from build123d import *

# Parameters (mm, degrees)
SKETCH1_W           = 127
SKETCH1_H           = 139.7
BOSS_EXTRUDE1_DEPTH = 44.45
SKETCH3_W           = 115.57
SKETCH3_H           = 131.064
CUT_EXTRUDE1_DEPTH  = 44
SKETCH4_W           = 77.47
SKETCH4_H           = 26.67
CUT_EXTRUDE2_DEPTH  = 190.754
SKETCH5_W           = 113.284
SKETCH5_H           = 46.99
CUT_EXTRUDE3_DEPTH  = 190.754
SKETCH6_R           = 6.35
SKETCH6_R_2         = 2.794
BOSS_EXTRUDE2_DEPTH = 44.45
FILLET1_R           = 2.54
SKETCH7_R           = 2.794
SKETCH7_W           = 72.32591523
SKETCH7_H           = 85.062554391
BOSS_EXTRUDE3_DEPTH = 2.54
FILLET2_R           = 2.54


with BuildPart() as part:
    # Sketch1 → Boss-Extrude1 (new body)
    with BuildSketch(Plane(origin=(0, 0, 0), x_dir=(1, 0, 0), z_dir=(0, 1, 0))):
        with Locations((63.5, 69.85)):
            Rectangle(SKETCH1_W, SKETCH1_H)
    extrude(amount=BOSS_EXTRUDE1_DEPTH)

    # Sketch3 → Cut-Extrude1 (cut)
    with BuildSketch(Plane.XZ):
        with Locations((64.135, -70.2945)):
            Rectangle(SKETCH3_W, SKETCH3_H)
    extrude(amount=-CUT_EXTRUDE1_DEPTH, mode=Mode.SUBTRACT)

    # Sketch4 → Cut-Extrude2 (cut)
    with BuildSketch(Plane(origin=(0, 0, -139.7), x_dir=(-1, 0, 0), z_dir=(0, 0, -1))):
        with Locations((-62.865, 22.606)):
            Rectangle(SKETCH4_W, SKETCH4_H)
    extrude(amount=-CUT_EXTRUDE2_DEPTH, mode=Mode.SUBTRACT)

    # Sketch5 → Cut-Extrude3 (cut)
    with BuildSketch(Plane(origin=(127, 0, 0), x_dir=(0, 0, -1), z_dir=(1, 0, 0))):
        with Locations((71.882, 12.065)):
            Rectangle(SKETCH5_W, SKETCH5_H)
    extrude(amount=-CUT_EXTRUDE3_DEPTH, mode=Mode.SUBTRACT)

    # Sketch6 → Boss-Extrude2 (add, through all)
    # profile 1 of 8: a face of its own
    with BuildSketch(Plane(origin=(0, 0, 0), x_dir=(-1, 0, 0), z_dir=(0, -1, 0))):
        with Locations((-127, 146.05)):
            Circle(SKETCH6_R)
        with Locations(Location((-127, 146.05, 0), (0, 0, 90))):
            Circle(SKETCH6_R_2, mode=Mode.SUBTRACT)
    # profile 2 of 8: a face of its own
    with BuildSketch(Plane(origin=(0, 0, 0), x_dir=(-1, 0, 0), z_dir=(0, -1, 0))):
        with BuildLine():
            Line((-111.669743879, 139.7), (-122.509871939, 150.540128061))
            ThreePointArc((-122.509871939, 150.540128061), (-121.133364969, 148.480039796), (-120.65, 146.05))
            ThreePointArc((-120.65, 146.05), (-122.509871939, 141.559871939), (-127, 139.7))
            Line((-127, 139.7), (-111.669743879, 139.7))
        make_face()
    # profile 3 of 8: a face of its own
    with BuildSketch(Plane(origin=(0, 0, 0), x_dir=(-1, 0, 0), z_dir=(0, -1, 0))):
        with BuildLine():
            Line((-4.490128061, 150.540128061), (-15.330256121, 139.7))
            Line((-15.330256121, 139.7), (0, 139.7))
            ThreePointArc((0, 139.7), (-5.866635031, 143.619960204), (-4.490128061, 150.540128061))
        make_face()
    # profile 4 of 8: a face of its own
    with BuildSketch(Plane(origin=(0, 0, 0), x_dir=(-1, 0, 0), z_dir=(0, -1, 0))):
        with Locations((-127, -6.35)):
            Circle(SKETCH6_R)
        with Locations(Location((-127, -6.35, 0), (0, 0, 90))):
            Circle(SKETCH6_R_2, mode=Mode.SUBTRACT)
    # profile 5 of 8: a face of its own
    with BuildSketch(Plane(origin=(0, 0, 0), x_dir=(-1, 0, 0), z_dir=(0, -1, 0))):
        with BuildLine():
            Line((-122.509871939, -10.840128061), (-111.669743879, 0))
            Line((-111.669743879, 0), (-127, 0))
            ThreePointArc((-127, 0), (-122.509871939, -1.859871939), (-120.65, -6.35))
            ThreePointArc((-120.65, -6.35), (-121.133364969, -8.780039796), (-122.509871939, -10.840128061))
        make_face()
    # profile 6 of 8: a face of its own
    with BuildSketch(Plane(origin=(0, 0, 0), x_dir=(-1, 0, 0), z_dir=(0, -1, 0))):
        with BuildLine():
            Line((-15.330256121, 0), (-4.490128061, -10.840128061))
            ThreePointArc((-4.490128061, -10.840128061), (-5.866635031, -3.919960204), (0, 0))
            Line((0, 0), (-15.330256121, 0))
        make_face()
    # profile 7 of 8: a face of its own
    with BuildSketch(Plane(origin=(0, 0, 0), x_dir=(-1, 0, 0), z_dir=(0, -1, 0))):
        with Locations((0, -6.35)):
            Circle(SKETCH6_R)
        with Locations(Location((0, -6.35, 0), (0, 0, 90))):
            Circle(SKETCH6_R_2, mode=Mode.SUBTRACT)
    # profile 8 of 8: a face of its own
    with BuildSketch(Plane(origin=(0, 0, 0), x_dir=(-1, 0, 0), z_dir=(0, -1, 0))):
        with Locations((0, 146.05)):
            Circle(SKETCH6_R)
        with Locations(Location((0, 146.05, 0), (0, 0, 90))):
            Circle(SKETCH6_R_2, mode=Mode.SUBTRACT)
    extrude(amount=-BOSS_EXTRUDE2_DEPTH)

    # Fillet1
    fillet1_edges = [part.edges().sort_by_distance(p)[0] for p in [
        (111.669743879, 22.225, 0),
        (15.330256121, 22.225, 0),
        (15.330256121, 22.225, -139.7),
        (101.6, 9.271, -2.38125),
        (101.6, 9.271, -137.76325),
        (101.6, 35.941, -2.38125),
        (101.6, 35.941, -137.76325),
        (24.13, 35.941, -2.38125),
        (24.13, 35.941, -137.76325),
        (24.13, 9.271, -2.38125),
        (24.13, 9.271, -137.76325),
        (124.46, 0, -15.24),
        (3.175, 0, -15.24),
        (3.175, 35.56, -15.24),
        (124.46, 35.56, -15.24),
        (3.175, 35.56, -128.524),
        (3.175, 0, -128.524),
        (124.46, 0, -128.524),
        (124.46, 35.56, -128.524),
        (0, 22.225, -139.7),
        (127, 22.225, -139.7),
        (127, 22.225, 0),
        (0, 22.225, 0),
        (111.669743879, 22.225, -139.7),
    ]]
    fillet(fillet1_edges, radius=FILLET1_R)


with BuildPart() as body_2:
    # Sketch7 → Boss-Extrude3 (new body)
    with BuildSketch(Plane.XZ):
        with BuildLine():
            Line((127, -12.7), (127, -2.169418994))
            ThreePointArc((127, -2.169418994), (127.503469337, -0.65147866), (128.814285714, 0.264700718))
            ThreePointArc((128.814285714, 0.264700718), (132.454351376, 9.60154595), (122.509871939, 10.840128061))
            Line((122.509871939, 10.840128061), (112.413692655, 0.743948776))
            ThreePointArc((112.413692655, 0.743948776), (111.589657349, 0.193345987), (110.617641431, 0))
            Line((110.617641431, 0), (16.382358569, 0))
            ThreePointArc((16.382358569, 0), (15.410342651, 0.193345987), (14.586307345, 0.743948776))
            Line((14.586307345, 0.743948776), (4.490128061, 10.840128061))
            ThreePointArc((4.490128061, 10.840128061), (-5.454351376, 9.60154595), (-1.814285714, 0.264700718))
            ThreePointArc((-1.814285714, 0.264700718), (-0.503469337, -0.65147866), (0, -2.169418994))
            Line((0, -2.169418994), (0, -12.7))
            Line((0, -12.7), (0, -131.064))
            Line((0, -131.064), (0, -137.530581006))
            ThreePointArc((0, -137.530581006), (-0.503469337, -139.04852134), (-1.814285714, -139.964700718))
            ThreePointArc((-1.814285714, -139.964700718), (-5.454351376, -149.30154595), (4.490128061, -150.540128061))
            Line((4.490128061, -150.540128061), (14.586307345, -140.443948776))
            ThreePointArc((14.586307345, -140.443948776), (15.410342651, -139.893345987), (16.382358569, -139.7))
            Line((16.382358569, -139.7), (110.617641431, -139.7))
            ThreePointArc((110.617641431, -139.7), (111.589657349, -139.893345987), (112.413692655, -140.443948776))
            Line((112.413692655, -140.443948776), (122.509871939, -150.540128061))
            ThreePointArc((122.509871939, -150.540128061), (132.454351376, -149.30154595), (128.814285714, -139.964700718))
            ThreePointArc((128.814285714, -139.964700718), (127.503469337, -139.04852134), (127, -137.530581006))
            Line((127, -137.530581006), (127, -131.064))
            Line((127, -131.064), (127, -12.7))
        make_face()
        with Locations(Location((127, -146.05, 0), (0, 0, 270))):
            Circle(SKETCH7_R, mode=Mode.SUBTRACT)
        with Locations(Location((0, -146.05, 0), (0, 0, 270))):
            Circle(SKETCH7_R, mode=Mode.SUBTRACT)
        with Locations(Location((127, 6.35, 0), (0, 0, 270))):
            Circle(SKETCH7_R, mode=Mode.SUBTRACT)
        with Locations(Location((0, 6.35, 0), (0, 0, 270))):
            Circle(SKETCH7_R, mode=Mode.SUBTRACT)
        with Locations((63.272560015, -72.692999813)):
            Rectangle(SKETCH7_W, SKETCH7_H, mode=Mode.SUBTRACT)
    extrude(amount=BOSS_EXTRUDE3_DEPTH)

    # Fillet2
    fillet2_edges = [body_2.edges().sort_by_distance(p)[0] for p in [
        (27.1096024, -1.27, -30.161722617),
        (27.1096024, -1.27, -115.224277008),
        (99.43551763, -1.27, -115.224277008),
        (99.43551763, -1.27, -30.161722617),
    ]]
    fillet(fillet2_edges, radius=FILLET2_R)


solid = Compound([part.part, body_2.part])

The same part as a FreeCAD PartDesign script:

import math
import FreeCAD as App
import Part
import Sketcher
Q = App.Units.Quantity


def edges_at(feature, points):
    """Names of the edges that pass closest to the given points."""
    edges = feature.Shape.Edges
    near = lambda p: min(range(len(edges)), key=lambda i: edges[i].distToShape(Part.Vertex(*p))[0])
    return sorted({f"Edge{near(p) + 1}" for p in points})


def add_polygon(sketch, points):
    """Adds a closed chain of lines whose ends are joined by coincident constraints."""
    first, n = sketch.GeometryCount, len(points)
    for a, b in zip(points, points[1:] + points[:1]):
        sketch.addGeometry(Part.LineSegment(App.Vector(*a, 0), App.Vector(*b, 0)), False)
    for i in range(n):
        sketch.addConstraint(Sketcher.Constraint("Coincident", first + i, 2, first + (i + 1) % n, 1))

doc = App.newDocument("Part")
body = doc.addObject("PartDesign::Body", "Body")

sketch1 = body.newObject("Sketcher::SketchObject", "Sketch")
sketch1.AttachmentSupport = (doc.getObject("XZ_Plane"), [""])
sketch1.MapMode = "FlatFace"
add_polygon(sketch1, [(0, -139.7), (0, 0), (127, 0), (127, -139.7)])
sketch1.addConstraint([
    Sketcher.Constraint("Vertical", 0),
    Sketcher.Constraint("Horizontal", 1),
    Sketcher.Constraint("Vertical", 2),
    Sketcher.Constraint("Horizontal", 3),
    Sketcher.Constraint("Coincident", 0, 2, -1, 1),
    Sketcher.Constraint("DistanceX", 1, 1, 1, 2, Q("5 in")),
    Sketcher.Constraint("DistanceY", 0, 1, 0, 2, Q("5.5 in")),
])
pad1 = body.newObject("PartDesign::Pad", "Pad")
pad1.Profile = sketch1
pad1.Length = Q("1.75 in")
pad1.Reversed = True

sketch2 = body.newObject("Sketcher::SketchObject", "Sketch001")
sketch2.AttachmentSupport = (doc.getObject("XZ_Plane"), [""])
sketch2.MapMode = "FlatFace"
add_polygon(sketch2, [(6.35, -4.7625), (6.35, -135.8265), (121.92, -135.8265), (121.92, -4.7625)])
sketch2.addConstraint([
    Sketcher.Constraint("Vertical", 0),
    Sketcher.Constraint("Horizontal", 1),
    Sketcher.Constraint("Vertical", 2),
    Sketcher.Constraint("Horizontal", 3),
    Sketcher.Constraint("DistanceX", 1, 1, 1, 2, Q("4.55 in")),
    Sketcher.Constraint("DistanceY", 0, 2, 0, 1, Q("5.16 in")),
    Sketcher.Constraint("DistanceX", -1, 1, 1, 2, Q("4.8 in")),
    Sketcher.Constraint("DistanceY", 2, 2, -1, 1, Q("0.1875 in")),
])
pocket1 = body.newObject("PartDesign::Pocket", "Pocket")
pocket1.Profile = sketch2
pocket1.Length = 44

sketch3 = body.newObject("Sketcher::SketchObject", "Sketch002")
sketch3.AttachmentSupport = (doc.getObject("XY_Plane"), [""])
sketch3.MapMode = "FlatFace"
sketch3.AttachmentOffset = App.Placement(App.Vector(0, 0, -5.5 * 25.4), App.Rotation())
add_polygon(sketch3, [(101.6, 35.941), (101.6, 9.271), (24.13, 9.271), (24.13, 35.941)])
sketch3.addConstraint([
    Sketcher.Constraint("Vertical", 0),
    Sketcher.Constraint("Horizontal", 1),
    Sketcher.Constraint("Vertical", 2),
    Sketcher.Constraint("Horizontal", 3),
    Sketcher.Constraint("DistanceX", -1, 1, 0, 2, Q("4 in")),
    Sketcher.Constraint("DistanceX", 1, 2, 1, 1, Q("3.05 in")),
    Sketcher.Constraint("DistanceY", 0, 2, 0, 1, Q("1.05 in")),
    Sketcher.Constraint("DistanceY", -1, 1, 0, 2, Q("0.365 in")),
])
pocket2 = body.newObject("PartDesign::Pocket", "Pocket001")
pocket2.Profile = sketch3
pocket2.Length = Q("7.51 in")
pocket2.Reversed = True

sketch4 = body.newObject("Sketcher::SketchObject", "Sketch003")
sketch4.AttachmentSupport = (doc.getObject("YZ_Plane"), [""])
sketch4.MapMode = "FlatFace"
sketch4.AttachmentOffset = App.Placement(App.Vector(0, 0, 5 * 25.4), App.Rotation())
add_polygon(sketch4, [(35.56, -15.24), (-11.43, -15.24), (-11.43, -128.524), (35.56, -128.524)])
sketch4.addConstraint([
    Sketcher.Constraint("Horizontal", 0),
    Sketcher.Constraint("Vertical", 1),
    Sketcher.Constraint("Horizontal", 2),
    Sketcher.Constraint("Vertical", 3),
    Sketcher.Constraint("DistanceX", 0, 2, 0, 1, Q("1.85 in")),
    Sketcher.Constraint("DistanceY", 1, 2, 1, 1, Q("4.46 in")),
    Sketcher.Constraint("DistanceY", 0, 2, -1, 1, Q("0.6 in")),
    Sketcher.Constraint("DistanceX", -1, 1, 2, 2, Q("1.4 in")),
])
pocket3 = body.newObject("PartDesign::Pocket", "Pocket002")
pocket3.Profile = sketch4
pocket3.Length = Q("7.51 in")

sketch5 = body.newObject("Sketcher::SketchObject", "Sketch004")
sketch5.AttachmentSupport = (doc.getObject("XZ_Plane"), [""])
sketch5.MapMode = "FlatFace"
sketch5.addGeometry([
    Part.ArcOfCircle(Part.Circle(App.Vector(127, -146.05, 0), App.Vector(0, 0, 1), 6.35), math.radians(-135), math.radians(90)),
    Part.LineSegment(App.Vector(127, -139.7, 0), App.Vector(111.669744, -139.7, 0)),
    Part.LineSegment(App.Vector(111.669744, -139.7, 0), App.Vector(122.509872, -150.540128, 0)),
    Part.Circle(App.Vector(127, -146.05, 0), App.Vector(0, 0, 1), 2.794),
    Part.LineSegment(App.Vector(4.490128, -150.540128, 0), App.Vector(15.330256, -139.7, 0)),
    Part.LineSegment(App.Vector(15.330256, -139.7, 0), App.Vector(0, -139.7, 0)),
    Part.ArcOfCircle(Part.Circle(App.Vector(0, -146.05, 0), App.Vector(0, 0, 1), 6.35), math.radians(90), math.radians(315)),
    Part.Circle(App.Vector(0, -146.05, 0), App.Vector(0, 0, 1), 2.794),
    Part.ArcOfCircle(Part.Circle(App.Vector(127, 6.35, 0), App.Vector(0, 0, 1), 6.35), math.radians(-90), math.radians(135)),
    Part.LineSegment(App.Vector(122.509872, 10.840128, 0), App.Vector(111.669744, 0, 0)),
    Part.LineSegment(App.Vector(111.669744, 0, 0), App.Vector(127, 0, 0)),
    Part.Circle(App.Vector(127, 6.35, 0), App.Vector(0, 0, 1), 2.794),
    Part.LineSegment(App.Vector(15.330256, 0, 0), App.Vector(4.490128, 10.840128, 0)),
    Part.ArcOfCircle(Part.Circle(App.Vector(0, 6.35, 0), App.Vector(0, 0, 1), 6.35), math.radians(45), math.radians(270)),
    Part.LineSegment(App.Vector(0, 0, 0), App.Vector(15.330256, 0, 0)),
    Part.Circle(App.Vector(0, 6.35, 0), App.Vector(0, 0, 1), 2.794),
], False)
sketch5.addConstraint([
    Sketcher.Constraint("Tangent", 0, 2, 1, 1),
    Sketcher.Constraint("Coincident", 1, 2, 2, 1),
    Sketcher.Constraint("Tangent", 2, 2, 0, 1),
    Sketcher.Constraint("Coincident", 4, 2, 5, 1),
    Sketcher.Constraint("Tangent", 5, 2, 6, 1),
    Sketcher.Constraint("Tangent", 6, 2, 4, 1),
    Sketcher.Constraint("Tangent", 8, 2, 9, 1),
    Sketcher.Constraint("Coincident", 9, 2, 10, 1),
    Sketcher.Constraint("Tangent", 10, 2, 8, 1),
    Sketcher.Constraint("Tangent", 12, 2, 13, 1),
    Sketcher.Constraint("Tangent", 13, 2, 14, 1),
    Sketcher.Constraint("Coincident", 14, 2, 12, 1),
    Sketcher.Constraint("Horizontal", 1),
    Sketcher.Constraint("Horizontal", 5),
    Sketcher.Constraint("Horizontal", 10),
    Sketcher.Constraint("Horizontal", 14),
    Sketcher.Constraint("Coincident", 13, 2, -1, 1),
    Sketcher.Constraint("Coincident", 3, 3, 0, 3),
    Sketcher.Constraint("Coincident", 7, 3, 6, 3),
    Sketcher.Constraint("Coincident", 11, 3, 8, 3),
    Sketcher.Constraint("Coincident", 15, 3, 13, 3),
    Sketcher.Constraint("Equal", 0, 6),
    Sketcher.Constraint("Equal", 3, 7),
    Sketcher.Constraint("Equal", 6, 8),
    Sketcher.Constraint("Equal", 7, 11),
    Sketcher.Constraint("Equal", 8, 13),
    Sketcher.Constraint("Equal", 11, 15),
    Sketcher.Constraint("PointOnObject", 6, 3, -2),
    Sketcher.Constraint("PointOnObject", 9, 2, -1),
    Sketcher.Constraint("Perpendicular", 2, 4),
    Sketcher.Constraint("Parallel", 4, 9),
    Sketcher.Constraint("Perpendicular", 9, 12),
    Sketcher.Constraint("Horizontal", 3, 3, 6, 3),
    Sketcher.Constraint("Horizontal", 2, 2, 6, 2),
    Sketcher.Constraint("Vertical", 3, 3, 8, 3),
    Sketcher.Constraint("Diameter", 3, Q("0.22 in")),
    Sketcher.Constraint("Radius", 0, Q("0.25 in")),
    Sketcher.Constraint("DistanceX", -1, 1, 0, 3, Q("5 in")),
    Sketcher.Constraint("DistanceY", 0, 3, 8, 3, Q("6 in")),
])
pad2 = body.newObject("PartDesign::Pad", "Pad001")
pad2.Profile = sketch5
pad2.Length = Q("1.75 in")
pad2.Reversed = True
doc.recompute()

fillet = body.newObject("PartDesign::Fillet", "Fillet")
fillet.Base = (pad2, edges_at(pad2, [
    (111.67, 22.225, 0),
    (15.33, 22.225, 0),
    (15.33, 22.225, -139.7),
    (101.6, 9.271, -2.381),
    (101.6, 9.271, -137.763),
    (101.6, 35.941, -2.381),
    (101.6, 35.941, -137.763),
    (24.13, 35.941, -2.381),
    (24.13, 35.941, -137.763),
    (24.13, 9.271, -2.381),
    (24.13, 9.271, -137.763),
    (124.46, 0, -15.24),
    (3.175, 0, -15.24),
    (3.175, 35.56, -15.24),
    (124.46, 35.56, -15.24),
    (3.175, 35.56, -128.524),
    (3.175, 0, -128.524),
    (124.46, 0, -128.524),
    (124.46, 35.56, -128.524),
    (0, 22.225, -139.7),
    (127, 22.225, -139.7),
    (127, 22.225, 0),
    (0, 22.225, 0),
    (111.67, 22.225, -139.7),
]))
fillet.Radius = Q("0.1 in")
body2 = doc.addObject("PartDesign::Body", "Body001")

sketch6 = body2.newObject("Sketcher::SketchObject", "Sketch005")
sketch6.AttachmentSupport = (doc.getObject("XZ_Plane001"), [""])
sketch6.MapMode = "FlatFace"
sketch6.addGeometry(Part.ArcOfCircle(Part.Circle(App.Vector(129.54, -2.169419, 0), App.Vector(0, 0, 1), 2.54), math.radians(106.60155), math.radians(180)), False)
sketch6.addGeometry(Part.ArcOfCircle(Part.Circle(App.Vector(127, 6.35, 0), App.Vector(0, 0, 1), 6.35), math.radians(-73.39845), math.radians(135)), False)
sketch6.addGeometry(Part.LineSegment(App.Vector(122.509872, 10.840128, 0), App.Vector(112.413693, 0.743949, 0)), False)
sketch6.addGeometry(Part.ArcOfCircle(Part.Circle(App.Vector(110.617641, 2.54, 0), App.Vector(0, 0, 1), 2.54), math.radians(-90), math.radians(-45)), False)
sketch6.addGeometry(Part.LineSegment(App.Vector(110.617641, 0, 0), App.Vector(16.382359, 0, 0)), False)
sketch6.addGeometry(Part.ArcOfCircle(Part.Circle(App.Vector(16.382359, 2.54, 0), App.Vector(0, 0, 1), 2.54), math.radians(-135), math.radians(-90)), False)
sketch6.addGeometry(Part.LineSegment(App.Vector(14.586307, 0.743949, 0), App.Vector(4.490128, 10.840128, 0)), False)
sketch6.addGeometry(Part.ArcOfCircle(Part.Circle(App.Vector(0, 6.35, 0), App.Vector(0, 0, 1), 6.35), math.radians(45), math.radians(253.39845)), False)
sketch6.addGeometry(Part.ArcOfCircle(Part.Circle(App.Vector(-2.54, -2.169419, 0), App.Vector(0, 0, 1), 2.54), math.radians(0), math.radians(73.39845)), False)
sketch6.addGeometry(Part.LineSegment(App.Vector(0, -2.169419, 0), App.Vector(0, -137.530581, 0)), False)
sketch6.addGeometry(Part.ArcOfCircle(Part.Circle(App.Vector(-2.54, -137.530581, 0), App.Vector(0, 0, 1), 2.54), math.radians(-73.39845), math.radians(0)), False)
sketch6.addGeometry(Part.ArcOfCircle(Part.Circle(App.Vector(0, -146.05, 0), App.Vector(0, 0, 1), 6.35), math.radians(106.60155), math.radians(315)), False)
sketch6.addGeometry(Part.LineSegment(App.Vector(4.490128, -150.540128, 0), App.Vector(14.586307, -140.443949, 0)), False)
sketch6.addGeometry(Part.ArcOfCircle(Part.Circle(App.Vector(16.382359, -142.24, 0), App.Vector(0, 0, 1), 2.54), math.radians(90), math.radians(135)), False)
sketch6.addGeometry(Part.LineSegment(App.Vector(16.382359, -139.7, 0), App.Vector(110.617641, -139.7, 0)), False)
sketch6.addGeometry(Part.ArcOfCircle(Part.Circle(App.Vector(110.617641, -142.24, 0), App.Vector(0, 0, 1), 2.54), math.radians(45), math.radians(90)), False)
sketch6.addGeometry(Part.LineSegment(App.Vector(112.413693, -140.443949, 0), App.Vector(122.509872, -150.540128, 0)), False)
sketch6.addGeometry(Part.ArcOfCircle(Part.Circle(App.Vector(127, -146.05, 0), App.Vector(0, 0, 1), 6.35), math.radians(-135), math.radians(73.39845)), False)
sketch6.addGeometry(Part.ArcOfCircle(Part.Circle(App.Vector(129.54, -137.530581, 0), App.Vector(0, 0, 1), 2.54), math.radians(180), math.radians(253.39845)), False)
sketch6.addGeometry(Part.LineSegment(App.Vector(127, -137.530581, 0), App.Vector(127, -2.169419, 0)), False)
sketch6.addGeometry(Part.Circle(App.Vector(0, -146.05, 0), App.Vector(0, 0, 1), 2.794), False)
add_polygon(sketch6, [(99.435518, -115.224277), (27.109602, -115.224277), (27.109602, -30.161723), (99.435518, -30.161723)])
sketch6.addGeometry(Part.Circle(App.Vector(127, -146.05, 0), App.Vector(0, 0, 1), 2.794), False)
sketch6.addGeometry(Part.Circle(App.Vector(0, 6.35, 0), App.Vector(0, 0, 1), 2.794), False)
sketch6.addGeometry(Part.Circle(App.Vector(127, 6.35, 0), App.Vector(0, 0, 1), 2.794), False)
sketch6.addConstraint([
    Sketcher.Constraint("Tangent", 0, 1, 1, 1),
    Sketcher.Constraint("Tangent", 1, 2, 2, 1),
    Sketcher.Constraint("Tangent", 2, 2, 3, 2),
    Sketcher.Constraint("Tangent", 3, 1, 4, 1),
    Sketcher.Constraint("Tangent", 4, 2, 5, 2),
    Sketcher.Constraint("Tangent", 5, 1, 6, 1),
    Sketcher.Constraint("Tangent", 6, 2, 7, 1),
    Sketcher.Constraint("Tangent", 7, 2, 8, 2),
    Sketcher.Constraint("Tangent", 8, 1, 9, 1),
    Sketcher.Constraint("Tangent", 9, 2, 10, 2),
    Sketcher.Constraint("Tangent", 10, 1, 11, 1),
    Sketcher.Constraint("Tangent", 11, 2, 12, 1),
    Sketcher.Constraint("Tangent", 12, 2, 13, 2),
    Sketcher.Constraint("Tangent", 13, 1, 14, 1),
    Sketcher.Constraint("Tangent", 14, 2, 15, 2),
    Sketcher.Constraint("Tangent", 15, 1, 16, 1),
    Sketcher.Constraint("Tangent", 16, 2, 17, 1),
    Sketcher.Constraint("Tangent", 17, 2, 18, 2),
    Sketcher.Constraint("Tangent", 18, 1, 19, 1),
    Sketcher.Constraint("Tangent", 19, 2, 0, 2),
    Sketcher.Constraint("Horizontal", 4),
    Sketcher.Constraint("Vertical", 9),
    Sketcher.Constraint("Horizontal", 14),
    Sketcher.Constraint("Vertical", 19),
    Sketcher.Constraint("Horizontal", 21),
    Sketcher.Constraint("Vertical", 22),
    Sketcher.Constraint("Horizontal", 23),
    Sketcher.Constraint("Vertical", 24),
    Sketcher.Constraint("Coincident", 20, 3, 11, 3),
    Sketcher.Constraint("Coincident", 25, 3, 17, 3),
    Sketcher.Constraint("Coincident", 26, 3, 7, 3),
    Sketcher.Constraint("Coincident", 27, 3, 1, 3),
    Sketcher.Constraint("Equal", 0, 3),
    Sketcher.Constraint("Equal", 3, 5),
    Sketcher.Constraint("Equal", 1, 7),
    Sketcher.Constraint("Equal", 5, 8),
    Sketcher.Constraint("Equal", 8, 10),
    Sketcher.Constraint("Equal", 7, 11),
    Sketcher.Constraint("Equal", 10, 13),
    Sketcher.Constraint("Equal", 13, 15),
    Sketcher.Constraint("Equal", 11, 17),
    Sketcher.Constraint("Equal", 15, 18),
    Sketcher.Constraint("Equal", 20, 25),
    Sketcher.Constraint("Equal", 25, 26),
    Sketcher.Constraint("Equal", 26, 27),
    Sketcher.Constraint("PointOnObject", 7, 3, -2),
    Sketcher.Constraint("PointOnObject", 11, 3, -2),
    Sketcher.Constraint("PointOnObject", 3, 1, -1),
    Sketcher.Constraint("PointOnObject", 8, 1, -2),
    Sketcher.Constraint("Perpendicular", 2, 6),
    Sketcher.Constraint("Perpendicular", 6, 12),
    Sketcher.Constraint("Perpendicular", 12, 16),
    Sketcher.Constraint("Horizontal", 1, 3, 7, 3),
    Sketcher.Constraint("Horizontal", 0, 3, 8, 3),
    Sketcher.Constraint("Horizontal", 11, 3, 17, 3),
    Sketcher.Constraint("Horizontal", 10, 3, 18, 3),
    Sketcher.Constraint("Horizontal", 2, 2, 5, 1),
    Sketcher.Constraint("Vertical", 5, 3, 13, 3),
    Sketcher.Constraint("Radius", 0, Q("0.1 in")),
    Sketcher.Constraint("Diameter", 20, Q("0.22 in")),
    Sketcher.Constraint("Radius", 1, Q("0.25 in")),
    Sketcher.Constraint("DistanceX", -1, 1, 1, 3, Q("5 in")),
    Sketcher.Constraint("DistanceY", 11, 3, 7, 3, Q("6 in")),
    Sketcher.Constraint("DistanceY", 13, 3, -1, 1, Q("5.6 in")),
    Sketcher.Constraint("DistanceX", 21, 2, 21, 1, 72.325915),
    Sketcher.Constraint("DistanceY", 22, 1, 22, 2, 85.062554),
    Sketcher.Constraint("DistanceY", 12, 2, 21, 2, 25.219672),
    Sketcher.Constraint("DistanceX", -1, 1, 21, 2, 27.109602),
])
pad3 = body2.newObject("PartDesign::Pad", "Pad002")
pad3.Profile = sketch6
pad3.Length = Q("0.1 in")
doc.recompute()

fillet2 = body2.newObject("PartDesign::Fillet", "Fillet001")
fillet2.Base = (pad3, edges_at(pad3, [
    (27.11, -1.27, -30.162),
    (27.11, -1.27, -115.224),
    (99.436, -1.27, -115.224),
    (99.436, -1.27, -30.162),
]))
fillet2.Radius = Q("0.1 in")

doc.recompute()
